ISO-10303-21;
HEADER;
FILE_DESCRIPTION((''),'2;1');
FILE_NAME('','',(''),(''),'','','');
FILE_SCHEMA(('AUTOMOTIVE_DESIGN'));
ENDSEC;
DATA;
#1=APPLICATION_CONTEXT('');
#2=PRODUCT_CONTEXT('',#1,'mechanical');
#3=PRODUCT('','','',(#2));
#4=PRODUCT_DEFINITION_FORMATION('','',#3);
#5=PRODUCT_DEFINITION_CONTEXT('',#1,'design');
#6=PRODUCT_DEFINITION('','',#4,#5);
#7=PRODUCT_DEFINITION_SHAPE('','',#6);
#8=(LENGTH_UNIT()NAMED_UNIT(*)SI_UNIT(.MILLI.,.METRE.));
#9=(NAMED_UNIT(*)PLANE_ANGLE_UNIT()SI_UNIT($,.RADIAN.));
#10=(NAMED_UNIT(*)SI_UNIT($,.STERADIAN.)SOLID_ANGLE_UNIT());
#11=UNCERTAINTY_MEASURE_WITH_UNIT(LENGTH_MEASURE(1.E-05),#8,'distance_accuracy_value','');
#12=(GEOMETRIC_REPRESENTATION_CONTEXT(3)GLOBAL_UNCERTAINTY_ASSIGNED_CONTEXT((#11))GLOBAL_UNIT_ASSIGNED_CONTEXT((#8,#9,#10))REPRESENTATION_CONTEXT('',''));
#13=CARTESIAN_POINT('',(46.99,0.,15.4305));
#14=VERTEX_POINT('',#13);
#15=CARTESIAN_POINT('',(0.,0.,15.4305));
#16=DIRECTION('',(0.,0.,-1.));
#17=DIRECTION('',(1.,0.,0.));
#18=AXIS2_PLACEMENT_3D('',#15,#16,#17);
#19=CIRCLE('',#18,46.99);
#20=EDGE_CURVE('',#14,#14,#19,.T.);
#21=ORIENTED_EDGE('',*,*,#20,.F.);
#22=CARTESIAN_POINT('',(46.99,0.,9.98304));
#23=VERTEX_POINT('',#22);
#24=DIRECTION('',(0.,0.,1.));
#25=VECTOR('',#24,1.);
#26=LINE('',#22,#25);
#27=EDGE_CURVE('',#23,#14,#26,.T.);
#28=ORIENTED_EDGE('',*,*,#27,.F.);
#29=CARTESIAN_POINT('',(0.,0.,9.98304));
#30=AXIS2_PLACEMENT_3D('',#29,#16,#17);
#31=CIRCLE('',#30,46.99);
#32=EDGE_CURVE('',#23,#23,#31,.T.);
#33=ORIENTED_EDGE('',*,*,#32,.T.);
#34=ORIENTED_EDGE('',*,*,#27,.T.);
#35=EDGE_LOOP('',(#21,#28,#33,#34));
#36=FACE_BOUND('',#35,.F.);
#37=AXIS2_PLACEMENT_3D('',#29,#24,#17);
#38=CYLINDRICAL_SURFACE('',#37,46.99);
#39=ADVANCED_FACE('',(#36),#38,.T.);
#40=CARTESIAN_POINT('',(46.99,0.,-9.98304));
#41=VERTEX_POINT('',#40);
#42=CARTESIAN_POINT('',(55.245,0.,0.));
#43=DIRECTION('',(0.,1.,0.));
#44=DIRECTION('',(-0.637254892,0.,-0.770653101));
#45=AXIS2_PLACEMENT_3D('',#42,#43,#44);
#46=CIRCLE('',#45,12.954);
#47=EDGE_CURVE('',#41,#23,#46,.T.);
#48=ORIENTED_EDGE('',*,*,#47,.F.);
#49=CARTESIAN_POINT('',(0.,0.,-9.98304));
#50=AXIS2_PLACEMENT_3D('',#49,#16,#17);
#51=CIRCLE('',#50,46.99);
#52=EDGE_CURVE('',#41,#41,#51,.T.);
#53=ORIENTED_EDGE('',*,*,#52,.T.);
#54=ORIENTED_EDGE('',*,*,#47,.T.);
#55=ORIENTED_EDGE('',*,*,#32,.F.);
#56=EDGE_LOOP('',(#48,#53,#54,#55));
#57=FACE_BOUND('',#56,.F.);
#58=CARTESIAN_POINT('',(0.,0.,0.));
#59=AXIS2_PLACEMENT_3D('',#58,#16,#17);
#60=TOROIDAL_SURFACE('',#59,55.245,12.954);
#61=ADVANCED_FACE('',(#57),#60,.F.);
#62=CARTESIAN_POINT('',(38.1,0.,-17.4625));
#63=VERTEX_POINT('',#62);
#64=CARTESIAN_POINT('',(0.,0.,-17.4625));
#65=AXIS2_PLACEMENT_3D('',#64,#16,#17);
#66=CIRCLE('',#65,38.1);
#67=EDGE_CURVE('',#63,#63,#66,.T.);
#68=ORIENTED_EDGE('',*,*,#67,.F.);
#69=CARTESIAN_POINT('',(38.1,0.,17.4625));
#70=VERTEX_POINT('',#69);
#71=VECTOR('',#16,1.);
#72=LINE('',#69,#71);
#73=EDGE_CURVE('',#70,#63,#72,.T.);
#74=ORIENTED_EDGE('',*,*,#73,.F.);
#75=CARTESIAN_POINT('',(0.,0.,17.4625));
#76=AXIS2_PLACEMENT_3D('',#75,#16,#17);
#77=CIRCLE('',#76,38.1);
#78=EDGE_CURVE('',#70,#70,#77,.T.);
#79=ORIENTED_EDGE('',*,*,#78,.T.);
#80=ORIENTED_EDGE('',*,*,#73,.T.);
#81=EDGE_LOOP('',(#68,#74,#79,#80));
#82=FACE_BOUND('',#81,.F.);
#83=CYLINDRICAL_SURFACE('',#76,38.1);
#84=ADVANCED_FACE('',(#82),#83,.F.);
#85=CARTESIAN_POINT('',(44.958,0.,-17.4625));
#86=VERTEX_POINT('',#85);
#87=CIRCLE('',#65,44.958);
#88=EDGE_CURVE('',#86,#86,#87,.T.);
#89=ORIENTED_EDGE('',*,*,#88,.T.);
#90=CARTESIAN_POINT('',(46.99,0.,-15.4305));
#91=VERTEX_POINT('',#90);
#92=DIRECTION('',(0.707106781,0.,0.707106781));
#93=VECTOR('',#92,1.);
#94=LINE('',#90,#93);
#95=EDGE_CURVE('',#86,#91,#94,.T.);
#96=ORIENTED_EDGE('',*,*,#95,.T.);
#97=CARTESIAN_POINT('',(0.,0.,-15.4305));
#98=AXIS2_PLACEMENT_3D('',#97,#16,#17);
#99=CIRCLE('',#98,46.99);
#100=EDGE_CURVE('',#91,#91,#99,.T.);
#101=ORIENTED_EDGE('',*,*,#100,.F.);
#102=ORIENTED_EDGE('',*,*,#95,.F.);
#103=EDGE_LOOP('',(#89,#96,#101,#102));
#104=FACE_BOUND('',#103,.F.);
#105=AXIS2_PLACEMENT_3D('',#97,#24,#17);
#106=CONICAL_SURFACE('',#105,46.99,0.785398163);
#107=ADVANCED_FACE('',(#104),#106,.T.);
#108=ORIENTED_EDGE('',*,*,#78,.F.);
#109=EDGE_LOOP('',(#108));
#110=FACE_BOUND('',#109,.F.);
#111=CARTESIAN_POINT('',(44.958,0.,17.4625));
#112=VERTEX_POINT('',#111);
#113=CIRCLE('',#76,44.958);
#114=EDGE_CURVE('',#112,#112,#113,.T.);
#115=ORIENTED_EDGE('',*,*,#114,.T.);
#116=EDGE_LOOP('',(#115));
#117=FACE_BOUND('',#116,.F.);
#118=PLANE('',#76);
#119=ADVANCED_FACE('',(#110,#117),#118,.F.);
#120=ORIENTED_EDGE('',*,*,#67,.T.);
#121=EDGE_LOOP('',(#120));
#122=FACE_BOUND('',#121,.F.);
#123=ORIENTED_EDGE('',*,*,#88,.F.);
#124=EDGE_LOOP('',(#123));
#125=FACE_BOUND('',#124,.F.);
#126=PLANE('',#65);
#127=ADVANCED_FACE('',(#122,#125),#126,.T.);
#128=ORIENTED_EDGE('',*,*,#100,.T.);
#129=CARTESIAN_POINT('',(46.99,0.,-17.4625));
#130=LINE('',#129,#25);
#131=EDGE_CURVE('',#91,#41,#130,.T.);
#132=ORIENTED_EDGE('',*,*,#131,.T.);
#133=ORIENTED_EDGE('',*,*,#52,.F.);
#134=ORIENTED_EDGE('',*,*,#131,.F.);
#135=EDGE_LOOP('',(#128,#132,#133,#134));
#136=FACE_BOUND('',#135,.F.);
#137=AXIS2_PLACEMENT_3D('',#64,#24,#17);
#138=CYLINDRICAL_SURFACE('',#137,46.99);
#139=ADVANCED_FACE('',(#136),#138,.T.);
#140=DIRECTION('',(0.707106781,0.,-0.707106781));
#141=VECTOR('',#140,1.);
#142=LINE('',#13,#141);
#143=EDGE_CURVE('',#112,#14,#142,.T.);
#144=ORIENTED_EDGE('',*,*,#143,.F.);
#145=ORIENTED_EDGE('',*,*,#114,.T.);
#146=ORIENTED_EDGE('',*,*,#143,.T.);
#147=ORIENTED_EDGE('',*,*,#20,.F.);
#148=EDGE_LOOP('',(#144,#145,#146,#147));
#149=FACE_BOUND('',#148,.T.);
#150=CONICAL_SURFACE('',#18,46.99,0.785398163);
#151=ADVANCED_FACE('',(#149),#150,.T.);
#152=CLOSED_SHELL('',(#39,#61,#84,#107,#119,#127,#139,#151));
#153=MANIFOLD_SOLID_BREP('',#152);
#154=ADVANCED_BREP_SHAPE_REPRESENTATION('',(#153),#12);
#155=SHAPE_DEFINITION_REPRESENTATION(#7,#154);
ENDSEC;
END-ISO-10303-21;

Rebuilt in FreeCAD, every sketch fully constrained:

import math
import FreeCAD as App
import Part
import Sketcher
from FreeCAD import Vector
Q = App.Units.Quantity


def edges_at(feature, points):
    """Names of the edges that pass closest to the given points."""
    edges = feature.Shape.Edges
    near = lambda p: min(range(len(edges)), key=lambda i: edges[i].distToShape(Part.Vertex(*p))[0])
    return sorted({f"Edge{near(p) + 1}" for p in points})

doc = App.newDocument("Part")
body = doc.addObject("PartDesign::Body", "Body")

# Sketch on XZ plane
sketch1 = doc.addObject("Sketcher::SketchObject", "Sketch")
body.addObject(sketch1)
sketch1.AttachmentSupport = (doc.XZ_Plane, [""])
sketch1.MapMode = "FlatFace"
sketch1.addGeometry(Part.LineSegment(Vector(46.99, 17.4625, 0), Vector(38.1, 17.4625, 0)), False)
sketch1.addGeometry(Part.LineSegment(Vector(38.1, 17.4625, 0), Vector(38.1, -17.4625, 0)), False)
sketch1.addGeometry(Part.LineSegment(Vector(38.1, -17.4625, 0), Vector(46.99, -17.4625, 0)), False)
sketch1.addGeometry(Part.LineSegment(Vector(46.99, -17.4625, 0), Vector(46.99, -9.98304, 0)), False)
sketch1.addGeometry(Part.ArcOfCircle(Part.Circle(Vector(55.245, 0, 0), Vector(0, 0, 1), 12.954), math.radians(129.587427), math.radians(230.412573)), False)
sketch1.addGeometry(Part.LineSegment(Vector(46.99, 9.98304, 0), Vector(46.99, 17.4625, 0)), False)
sketch1.addConstraint(Sketcher.Constraint("Coincident", 0, 2, 1, 1))
sketch1.addConstraint(Sketcher.Constraint("Coincident", 1, 2, 2, 1))
sketch1.addConstraint(Sketcher.Constraint("Coincident", 2, 2, 3, 1))
sketch1.addConstraint(Sketcher.Constraint("Coincident", 3, 2, 4, 2))
sketch1.addConstraint(Sketcher.Constraint("Coincident", 4, 1, 5, 1))
sketch1.addConstraint(Sketcher.Constraint("Coincident", 5, 2, 0, 1))
sketch1.addConstraint(Sketcher.Constraint("Horizontal", 0))
sketch1.addConstraint(Sketcher.Constraint("Vertical", 1))
sketch1.addConstraint(Sketcher.Constraint("Horizontal", 2))
sketch1.addConstraint(Sketcher.Constraint("Vertical", 3))
sketch1.addConstraint(Sketcher.Constraint("Vertical", 5))
sketch1.addConstraint(Sketcher.Constraint("Symmetric", 3, 2, 4, 1, -1))
sketch1.addConstraint(Sketcher.Constraint("Equal", 3, 5))
sketch1.addConstraint(Sketcher.Constraint("Radius", 4, Q("0.51 in")))
sketch1.addConstraint(Sketcher.Constraint("DistanceX", 0, 2, 0, 1, Q("0.35 in")))
sketch1.addConstraint(Sketcher.Constraint("DistanceX", -1, 1, 0, 2, Q("1.5 in")))
sketch1.addConstraint(Sketcher.Constraint("DistanceY", 1, 2, 1, 1, Q("1.375 in")))
sketch1.addConstraint(Sketcher.Constraint("DistanceX", -1, 1, 4, 3, Q("2.175 in")))
revolution = doc.addObject("PartDesign::Revolution", "Revolution")
body.addObject(revolution)
revolution.Profile = sketch1
revolution.ReferenceAxis = (sketch1, ["V_Axis"])
revolution.Angle = 360
doc.recompute()

chamfer = doc.addObject("PartDesign::Chamfer", "Chamfer")
body.addObject(chamfer)
chamfer.Base = (revolution, edges_at(revolution, [(-46.99, 0, 17.462), (-46.99, 0, -17.462)]))
chamfer.Size = Q("0.08 in")

doc.recompute()
